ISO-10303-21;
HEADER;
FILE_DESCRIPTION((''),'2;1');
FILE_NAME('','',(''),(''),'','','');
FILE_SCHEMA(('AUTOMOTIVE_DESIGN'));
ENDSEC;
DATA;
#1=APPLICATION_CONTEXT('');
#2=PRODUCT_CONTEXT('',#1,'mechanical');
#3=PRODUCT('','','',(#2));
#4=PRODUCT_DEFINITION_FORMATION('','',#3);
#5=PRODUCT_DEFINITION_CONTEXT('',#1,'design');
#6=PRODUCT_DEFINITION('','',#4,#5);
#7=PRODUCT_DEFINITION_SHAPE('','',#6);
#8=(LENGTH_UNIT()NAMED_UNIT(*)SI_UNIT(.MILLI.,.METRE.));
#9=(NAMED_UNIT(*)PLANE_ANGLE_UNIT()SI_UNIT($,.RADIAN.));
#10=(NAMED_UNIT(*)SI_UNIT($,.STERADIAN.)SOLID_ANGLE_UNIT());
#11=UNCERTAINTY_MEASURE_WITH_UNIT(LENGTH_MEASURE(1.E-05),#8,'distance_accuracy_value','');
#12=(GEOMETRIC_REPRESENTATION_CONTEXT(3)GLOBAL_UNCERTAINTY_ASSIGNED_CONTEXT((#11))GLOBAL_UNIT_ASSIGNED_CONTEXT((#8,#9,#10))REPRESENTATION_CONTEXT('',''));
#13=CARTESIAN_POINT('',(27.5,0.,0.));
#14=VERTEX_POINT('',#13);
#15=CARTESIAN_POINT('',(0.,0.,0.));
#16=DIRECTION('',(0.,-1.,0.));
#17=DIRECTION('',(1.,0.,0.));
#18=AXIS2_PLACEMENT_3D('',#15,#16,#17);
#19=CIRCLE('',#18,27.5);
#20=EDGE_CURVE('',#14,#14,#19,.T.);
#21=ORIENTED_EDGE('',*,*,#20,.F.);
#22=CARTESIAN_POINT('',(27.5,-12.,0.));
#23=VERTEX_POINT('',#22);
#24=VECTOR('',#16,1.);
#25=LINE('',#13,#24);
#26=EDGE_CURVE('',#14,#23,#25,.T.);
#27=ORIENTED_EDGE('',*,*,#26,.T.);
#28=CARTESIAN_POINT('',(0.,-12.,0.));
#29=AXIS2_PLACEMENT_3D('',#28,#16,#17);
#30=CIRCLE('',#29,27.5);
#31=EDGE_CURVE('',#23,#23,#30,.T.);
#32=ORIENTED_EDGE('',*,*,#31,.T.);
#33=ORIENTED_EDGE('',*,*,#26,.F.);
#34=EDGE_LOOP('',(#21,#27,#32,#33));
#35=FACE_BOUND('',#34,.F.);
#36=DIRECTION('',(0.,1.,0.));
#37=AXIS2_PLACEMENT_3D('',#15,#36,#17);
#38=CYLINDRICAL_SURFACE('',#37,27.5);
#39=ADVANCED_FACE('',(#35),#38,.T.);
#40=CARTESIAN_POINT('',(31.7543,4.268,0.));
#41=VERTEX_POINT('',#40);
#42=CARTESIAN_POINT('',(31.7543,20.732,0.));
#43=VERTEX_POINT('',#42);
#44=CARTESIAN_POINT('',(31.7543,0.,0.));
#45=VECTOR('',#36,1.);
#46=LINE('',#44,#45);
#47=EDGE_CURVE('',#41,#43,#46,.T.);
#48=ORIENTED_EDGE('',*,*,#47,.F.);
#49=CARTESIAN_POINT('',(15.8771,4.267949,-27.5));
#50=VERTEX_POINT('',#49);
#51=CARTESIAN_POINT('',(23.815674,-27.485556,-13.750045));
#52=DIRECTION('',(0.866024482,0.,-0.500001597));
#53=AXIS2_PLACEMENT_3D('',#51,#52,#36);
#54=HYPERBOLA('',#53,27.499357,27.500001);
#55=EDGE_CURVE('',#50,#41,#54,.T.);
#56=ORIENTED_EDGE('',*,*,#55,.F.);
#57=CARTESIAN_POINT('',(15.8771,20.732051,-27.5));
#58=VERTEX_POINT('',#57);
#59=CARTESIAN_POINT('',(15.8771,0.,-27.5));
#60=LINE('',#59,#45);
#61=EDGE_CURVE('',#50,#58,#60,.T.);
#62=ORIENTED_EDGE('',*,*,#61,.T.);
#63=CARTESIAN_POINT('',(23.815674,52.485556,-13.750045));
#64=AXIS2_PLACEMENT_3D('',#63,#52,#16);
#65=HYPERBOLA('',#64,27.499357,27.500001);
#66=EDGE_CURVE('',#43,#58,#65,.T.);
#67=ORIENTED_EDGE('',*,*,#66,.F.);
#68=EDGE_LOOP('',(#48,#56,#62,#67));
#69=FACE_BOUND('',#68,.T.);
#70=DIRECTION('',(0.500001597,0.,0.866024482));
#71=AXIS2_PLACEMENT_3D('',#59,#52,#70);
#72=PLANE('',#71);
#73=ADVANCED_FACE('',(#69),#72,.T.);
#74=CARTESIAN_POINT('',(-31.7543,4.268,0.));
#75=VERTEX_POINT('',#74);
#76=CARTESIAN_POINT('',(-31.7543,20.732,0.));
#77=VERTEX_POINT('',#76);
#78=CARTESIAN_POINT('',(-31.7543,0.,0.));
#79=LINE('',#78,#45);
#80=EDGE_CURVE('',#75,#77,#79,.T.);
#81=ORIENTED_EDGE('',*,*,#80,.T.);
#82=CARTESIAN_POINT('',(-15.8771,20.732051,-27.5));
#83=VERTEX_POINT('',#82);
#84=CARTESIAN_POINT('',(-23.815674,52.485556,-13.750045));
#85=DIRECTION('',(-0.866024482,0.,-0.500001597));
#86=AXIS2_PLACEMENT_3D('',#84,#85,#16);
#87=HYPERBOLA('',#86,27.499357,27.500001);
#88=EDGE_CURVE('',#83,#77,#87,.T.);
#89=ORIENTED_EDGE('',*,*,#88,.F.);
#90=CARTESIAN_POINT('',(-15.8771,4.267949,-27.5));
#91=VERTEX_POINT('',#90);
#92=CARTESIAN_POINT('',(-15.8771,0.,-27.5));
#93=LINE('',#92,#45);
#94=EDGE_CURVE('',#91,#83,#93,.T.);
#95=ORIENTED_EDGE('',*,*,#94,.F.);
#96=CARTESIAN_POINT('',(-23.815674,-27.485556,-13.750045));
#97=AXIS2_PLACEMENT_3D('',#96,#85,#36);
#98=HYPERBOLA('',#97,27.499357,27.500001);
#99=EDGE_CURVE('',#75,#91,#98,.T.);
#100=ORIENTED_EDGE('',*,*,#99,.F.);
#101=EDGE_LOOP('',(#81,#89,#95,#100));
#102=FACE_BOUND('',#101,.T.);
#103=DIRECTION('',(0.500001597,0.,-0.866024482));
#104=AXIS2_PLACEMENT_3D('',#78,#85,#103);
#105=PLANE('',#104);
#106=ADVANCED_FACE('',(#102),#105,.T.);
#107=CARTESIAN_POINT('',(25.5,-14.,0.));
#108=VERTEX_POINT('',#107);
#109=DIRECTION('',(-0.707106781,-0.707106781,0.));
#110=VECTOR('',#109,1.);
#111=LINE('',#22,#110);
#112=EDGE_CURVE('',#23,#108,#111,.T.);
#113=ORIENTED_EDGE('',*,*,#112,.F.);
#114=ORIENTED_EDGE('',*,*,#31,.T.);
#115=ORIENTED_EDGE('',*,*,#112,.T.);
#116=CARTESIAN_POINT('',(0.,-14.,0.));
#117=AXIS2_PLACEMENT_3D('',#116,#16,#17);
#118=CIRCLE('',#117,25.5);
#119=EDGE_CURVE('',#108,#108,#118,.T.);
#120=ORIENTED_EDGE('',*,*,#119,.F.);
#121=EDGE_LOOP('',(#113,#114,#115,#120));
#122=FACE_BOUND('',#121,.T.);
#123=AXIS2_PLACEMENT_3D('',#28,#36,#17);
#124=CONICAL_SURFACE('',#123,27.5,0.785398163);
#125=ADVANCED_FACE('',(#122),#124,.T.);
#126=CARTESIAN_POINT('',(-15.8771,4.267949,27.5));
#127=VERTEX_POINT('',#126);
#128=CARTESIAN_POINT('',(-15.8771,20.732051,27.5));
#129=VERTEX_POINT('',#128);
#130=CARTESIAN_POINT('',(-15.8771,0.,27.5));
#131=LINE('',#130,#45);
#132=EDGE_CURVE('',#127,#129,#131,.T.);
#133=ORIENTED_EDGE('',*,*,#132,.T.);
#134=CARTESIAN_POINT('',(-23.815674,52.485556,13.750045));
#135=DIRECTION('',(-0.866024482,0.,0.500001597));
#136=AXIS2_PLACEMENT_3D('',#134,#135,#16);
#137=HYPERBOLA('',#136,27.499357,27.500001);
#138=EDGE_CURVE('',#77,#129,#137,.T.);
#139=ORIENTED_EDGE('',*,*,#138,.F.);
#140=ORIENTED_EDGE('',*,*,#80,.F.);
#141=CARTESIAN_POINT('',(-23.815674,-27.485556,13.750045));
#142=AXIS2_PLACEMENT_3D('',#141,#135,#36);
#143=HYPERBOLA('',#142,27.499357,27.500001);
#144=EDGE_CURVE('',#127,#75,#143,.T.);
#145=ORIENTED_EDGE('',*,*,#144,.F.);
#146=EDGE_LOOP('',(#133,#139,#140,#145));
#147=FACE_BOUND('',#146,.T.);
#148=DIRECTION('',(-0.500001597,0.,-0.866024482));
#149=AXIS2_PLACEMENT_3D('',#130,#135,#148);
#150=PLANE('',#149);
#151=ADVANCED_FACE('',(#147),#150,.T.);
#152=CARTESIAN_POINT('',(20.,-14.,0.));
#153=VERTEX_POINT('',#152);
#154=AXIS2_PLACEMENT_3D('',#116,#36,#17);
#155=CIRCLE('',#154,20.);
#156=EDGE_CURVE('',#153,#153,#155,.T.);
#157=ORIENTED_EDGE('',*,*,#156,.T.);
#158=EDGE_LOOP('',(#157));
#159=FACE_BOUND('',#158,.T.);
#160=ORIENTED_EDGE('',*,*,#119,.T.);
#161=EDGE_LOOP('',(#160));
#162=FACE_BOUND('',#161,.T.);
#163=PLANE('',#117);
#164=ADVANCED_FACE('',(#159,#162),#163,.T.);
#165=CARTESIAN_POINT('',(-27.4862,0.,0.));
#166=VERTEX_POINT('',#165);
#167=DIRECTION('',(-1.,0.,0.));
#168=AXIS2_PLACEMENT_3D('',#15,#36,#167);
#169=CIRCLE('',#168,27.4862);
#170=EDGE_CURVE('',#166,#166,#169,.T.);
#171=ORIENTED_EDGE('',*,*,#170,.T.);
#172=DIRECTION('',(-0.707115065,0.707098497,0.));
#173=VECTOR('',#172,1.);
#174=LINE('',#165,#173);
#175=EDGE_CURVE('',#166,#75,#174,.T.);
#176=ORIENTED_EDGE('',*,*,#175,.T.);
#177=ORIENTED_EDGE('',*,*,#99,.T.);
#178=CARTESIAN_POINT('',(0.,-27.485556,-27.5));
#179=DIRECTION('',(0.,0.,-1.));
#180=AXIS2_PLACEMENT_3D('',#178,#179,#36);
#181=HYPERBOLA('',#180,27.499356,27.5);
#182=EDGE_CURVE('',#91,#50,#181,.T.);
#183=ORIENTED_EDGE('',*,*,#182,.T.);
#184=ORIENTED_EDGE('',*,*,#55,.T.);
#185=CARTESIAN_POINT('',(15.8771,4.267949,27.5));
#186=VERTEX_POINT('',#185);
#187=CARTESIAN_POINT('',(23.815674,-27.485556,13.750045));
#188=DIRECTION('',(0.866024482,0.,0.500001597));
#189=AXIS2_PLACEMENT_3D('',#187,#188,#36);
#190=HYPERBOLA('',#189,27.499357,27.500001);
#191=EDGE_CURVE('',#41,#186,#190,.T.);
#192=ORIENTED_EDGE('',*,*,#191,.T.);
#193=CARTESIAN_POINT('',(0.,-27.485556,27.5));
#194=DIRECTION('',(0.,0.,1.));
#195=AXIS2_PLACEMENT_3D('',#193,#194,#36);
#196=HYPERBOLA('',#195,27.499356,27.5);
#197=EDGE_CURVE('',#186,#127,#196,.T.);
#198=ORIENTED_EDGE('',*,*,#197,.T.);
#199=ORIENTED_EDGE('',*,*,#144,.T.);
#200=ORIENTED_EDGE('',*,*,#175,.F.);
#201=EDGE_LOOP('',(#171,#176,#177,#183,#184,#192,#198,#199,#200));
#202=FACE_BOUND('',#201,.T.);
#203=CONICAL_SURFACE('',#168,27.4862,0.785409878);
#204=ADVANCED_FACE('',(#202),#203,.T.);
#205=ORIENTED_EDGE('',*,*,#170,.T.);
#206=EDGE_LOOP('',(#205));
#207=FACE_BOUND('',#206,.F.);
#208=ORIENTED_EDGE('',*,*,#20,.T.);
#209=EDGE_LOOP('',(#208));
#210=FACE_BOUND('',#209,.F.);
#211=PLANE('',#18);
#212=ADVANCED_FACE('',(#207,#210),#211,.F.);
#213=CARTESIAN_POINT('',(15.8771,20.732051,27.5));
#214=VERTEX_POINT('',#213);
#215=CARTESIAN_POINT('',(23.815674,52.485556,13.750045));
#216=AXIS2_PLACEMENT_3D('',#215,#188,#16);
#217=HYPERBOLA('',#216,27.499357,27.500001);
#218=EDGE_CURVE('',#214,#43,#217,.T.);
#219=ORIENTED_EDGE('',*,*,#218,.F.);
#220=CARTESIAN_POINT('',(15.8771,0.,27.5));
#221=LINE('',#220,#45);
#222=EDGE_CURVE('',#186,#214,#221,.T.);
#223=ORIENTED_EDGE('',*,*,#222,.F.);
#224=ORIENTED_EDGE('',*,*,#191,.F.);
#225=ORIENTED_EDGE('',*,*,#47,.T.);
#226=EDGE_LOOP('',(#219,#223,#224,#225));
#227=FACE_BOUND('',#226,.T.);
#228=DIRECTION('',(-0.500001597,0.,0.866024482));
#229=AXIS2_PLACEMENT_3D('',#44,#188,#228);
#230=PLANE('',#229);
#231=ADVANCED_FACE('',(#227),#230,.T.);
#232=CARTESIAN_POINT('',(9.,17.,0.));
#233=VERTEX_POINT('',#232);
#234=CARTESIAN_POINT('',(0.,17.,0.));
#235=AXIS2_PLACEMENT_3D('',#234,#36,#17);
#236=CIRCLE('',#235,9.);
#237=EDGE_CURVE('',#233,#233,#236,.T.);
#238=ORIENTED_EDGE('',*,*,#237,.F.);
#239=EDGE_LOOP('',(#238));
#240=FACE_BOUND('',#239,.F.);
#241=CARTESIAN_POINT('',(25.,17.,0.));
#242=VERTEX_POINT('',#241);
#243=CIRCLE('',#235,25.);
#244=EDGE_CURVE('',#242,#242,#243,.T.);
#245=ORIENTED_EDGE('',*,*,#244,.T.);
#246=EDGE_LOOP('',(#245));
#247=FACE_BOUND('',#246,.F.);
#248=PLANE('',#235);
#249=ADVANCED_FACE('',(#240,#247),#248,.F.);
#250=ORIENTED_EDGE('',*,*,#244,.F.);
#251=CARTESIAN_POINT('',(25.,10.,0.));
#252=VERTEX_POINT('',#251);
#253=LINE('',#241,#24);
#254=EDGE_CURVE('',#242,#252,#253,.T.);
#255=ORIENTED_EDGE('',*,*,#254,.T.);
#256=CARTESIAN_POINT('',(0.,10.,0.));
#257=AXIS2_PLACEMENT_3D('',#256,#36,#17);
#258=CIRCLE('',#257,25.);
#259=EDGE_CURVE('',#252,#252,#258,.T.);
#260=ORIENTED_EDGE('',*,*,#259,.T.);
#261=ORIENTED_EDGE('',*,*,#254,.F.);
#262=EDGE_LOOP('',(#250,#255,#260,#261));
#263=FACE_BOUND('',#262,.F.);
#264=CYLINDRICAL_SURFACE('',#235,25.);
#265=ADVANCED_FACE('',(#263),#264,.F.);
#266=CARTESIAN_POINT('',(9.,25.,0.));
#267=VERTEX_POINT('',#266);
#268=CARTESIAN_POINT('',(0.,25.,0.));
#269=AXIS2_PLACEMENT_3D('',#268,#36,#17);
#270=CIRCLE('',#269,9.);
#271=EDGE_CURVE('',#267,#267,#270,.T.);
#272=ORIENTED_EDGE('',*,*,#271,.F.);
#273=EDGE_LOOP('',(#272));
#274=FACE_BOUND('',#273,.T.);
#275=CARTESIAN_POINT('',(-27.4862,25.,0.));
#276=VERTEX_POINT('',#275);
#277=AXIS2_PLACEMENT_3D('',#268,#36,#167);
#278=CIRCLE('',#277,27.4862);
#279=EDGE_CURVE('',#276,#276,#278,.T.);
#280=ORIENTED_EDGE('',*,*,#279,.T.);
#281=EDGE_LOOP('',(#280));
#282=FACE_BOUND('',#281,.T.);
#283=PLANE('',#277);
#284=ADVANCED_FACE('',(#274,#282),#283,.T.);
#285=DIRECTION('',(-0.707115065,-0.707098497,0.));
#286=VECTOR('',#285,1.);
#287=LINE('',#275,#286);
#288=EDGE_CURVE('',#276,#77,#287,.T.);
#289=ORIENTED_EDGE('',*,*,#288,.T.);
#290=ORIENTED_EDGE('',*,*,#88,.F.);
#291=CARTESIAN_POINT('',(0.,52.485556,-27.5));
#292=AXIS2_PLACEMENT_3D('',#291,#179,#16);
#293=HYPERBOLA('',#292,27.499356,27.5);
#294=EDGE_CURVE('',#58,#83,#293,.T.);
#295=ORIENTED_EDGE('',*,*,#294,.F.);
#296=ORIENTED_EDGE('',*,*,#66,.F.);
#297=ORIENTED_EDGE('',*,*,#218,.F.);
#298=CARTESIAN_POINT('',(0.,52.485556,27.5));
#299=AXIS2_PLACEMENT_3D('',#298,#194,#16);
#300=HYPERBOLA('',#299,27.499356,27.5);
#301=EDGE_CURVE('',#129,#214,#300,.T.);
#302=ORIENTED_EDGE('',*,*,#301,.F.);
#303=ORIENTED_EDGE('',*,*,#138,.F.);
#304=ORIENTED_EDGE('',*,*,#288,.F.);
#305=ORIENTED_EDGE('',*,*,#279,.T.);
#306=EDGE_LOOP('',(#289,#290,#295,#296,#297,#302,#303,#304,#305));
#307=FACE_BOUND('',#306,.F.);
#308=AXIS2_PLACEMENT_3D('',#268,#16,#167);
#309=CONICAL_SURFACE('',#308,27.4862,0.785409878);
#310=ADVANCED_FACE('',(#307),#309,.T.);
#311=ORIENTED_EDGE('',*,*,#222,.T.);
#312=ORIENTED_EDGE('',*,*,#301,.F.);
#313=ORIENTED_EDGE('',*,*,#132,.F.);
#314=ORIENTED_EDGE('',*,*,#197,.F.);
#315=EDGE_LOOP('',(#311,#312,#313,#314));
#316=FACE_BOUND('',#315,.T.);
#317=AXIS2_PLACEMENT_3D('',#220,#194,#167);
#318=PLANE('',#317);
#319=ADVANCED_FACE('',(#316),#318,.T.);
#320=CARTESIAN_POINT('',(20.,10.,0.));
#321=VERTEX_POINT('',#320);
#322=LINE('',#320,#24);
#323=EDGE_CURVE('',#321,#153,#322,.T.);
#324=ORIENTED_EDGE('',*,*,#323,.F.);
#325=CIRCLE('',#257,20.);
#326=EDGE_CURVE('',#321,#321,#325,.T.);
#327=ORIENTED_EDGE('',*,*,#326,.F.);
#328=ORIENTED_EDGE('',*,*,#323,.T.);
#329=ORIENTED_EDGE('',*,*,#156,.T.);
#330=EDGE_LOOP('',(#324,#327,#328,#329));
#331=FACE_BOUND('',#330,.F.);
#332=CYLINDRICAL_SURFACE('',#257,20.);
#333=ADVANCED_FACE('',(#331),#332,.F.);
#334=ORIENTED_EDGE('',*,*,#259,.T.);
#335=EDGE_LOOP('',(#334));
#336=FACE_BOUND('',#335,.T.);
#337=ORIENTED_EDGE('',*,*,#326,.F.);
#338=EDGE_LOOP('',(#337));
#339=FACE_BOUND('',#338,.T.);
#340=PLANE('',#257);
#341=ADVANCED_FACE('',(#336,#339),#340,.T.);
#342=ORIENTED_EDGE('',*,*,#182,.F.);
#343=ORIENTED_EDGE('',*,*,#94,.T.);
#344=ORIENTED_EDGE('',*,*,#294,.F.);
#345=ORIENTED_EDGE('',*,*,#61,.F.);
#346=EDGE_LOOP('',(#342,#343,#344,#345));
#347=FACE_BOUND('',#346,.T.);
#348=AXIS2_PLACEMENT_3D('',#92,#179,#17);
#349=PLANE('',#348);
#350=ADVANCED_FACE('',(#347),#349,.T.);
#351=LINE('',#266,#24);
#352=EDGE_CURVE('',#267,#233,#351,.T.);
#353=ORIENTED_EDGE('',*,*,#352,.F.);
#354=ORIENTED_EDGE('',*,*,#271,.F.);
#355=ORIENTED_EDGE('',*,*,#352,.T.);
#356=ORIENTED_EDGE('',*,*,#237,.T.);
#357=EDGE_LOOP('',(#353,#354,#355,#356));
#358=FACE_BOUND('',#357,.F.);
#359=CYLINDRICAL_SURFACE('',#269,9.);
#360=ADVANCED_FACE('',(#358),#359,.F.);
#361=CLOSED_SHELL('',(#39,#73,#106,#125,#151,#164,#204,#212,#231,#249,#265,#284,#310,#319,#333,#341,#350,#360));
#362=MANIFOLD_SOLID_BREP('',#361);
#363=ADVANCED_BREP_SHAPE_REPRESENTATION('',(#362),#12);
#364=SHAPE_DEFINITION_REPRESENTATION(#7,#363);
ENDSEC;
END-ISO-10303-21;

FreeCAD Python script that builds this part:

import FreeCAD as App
import Part
import Sketcher

V = App.Vector
Q = App.Units.Quantity


def edges_at(feature, points):
    """Names of the edges that pass closest to the given points."""
    edges = feature.Shape.Edges
    near = lambda p: min(range(len(edges)), key=lambda i: edges[i].distToShape(Part.Vertex(*p))[0])
    return sorted({f"Edge{near(p) + 1}" for p in points})

doc = App.newDocument("Part")
body = doc.addObject("PartDesign::Body", "Body")

# Sketch on XZ plane
sketch1 = doc.addObject("Sketcher::SketchObject", "Sketch")
body.addObject(sketch1)
sketch1.AttachmentSupport = (doc.XZ_Plane, [""])
sketch1.MapMode = "FlatFace"
sketch1.addGeometry(Part.LineSegment(V(-16, -28, 0), V(-32, 0, 0)), False)
sketch1.addGeometry(Part.LineSegment(V(-32, 0, 0), V(-16, 28, 0)), False)
sketch1.addGeometry(Part.LineSegment(V(-16, 28, 0), V(16, 28, 0)), False)
sketch1.addGeometry(Part.LineSegment(V(16, 28, 0), V(32, 0, 0)), False)
sketch1.addGeometry(Part.LineSegment(V(32, 0, 0), V(16, -28, 0)), False)
sketch1.addGeometry(Part.LineSegment(V(16, -28, 0), V(-16, -28, 0)), False)
sketch1.addConstraint(Sketcher.Constraint("Coincident", 0, 2, 1, 1))
sketch1.addConstraint(Sketcher.Constraint("Coincident", 1, 2, 2, 1))
sketch1.addConstraint(Sketcher.Constraint("Coincident", 2, 2, 3, 1))
sketch1.addConstraint(Sketcher.Constraint("Coincident", 3, 2, 4, 1))
sketch1.addConstraint(Sketcher.Constraint("Coincident", 4, 2, 5, 1))
sketch1.addConstraint(Sketcher.Constraint("Coincident", 5, 2, 0, 1))
sketch1.addConstraint(Sketcher.Constraint("Horizontal", 2))
sketch1.addConstraint(Sketcher.Constraint("Horizontal", 5))
sketch1.addConstraint(Sketcher.Constraint("Symmetric", 0, 2, 3, 2, -1, 1))
sketch1.addConstraint(Sketcher.Constraint("Symmetric", 1, 2, 4, 2, -1, 1))
sketch1.addConstraint(Sketcher.Constraint("PointOnObject", 0, 2, -1))
sketch1.addConstraint(Sketcher.Constraint("Parallel", 0, 3))
sketch1.addConstraint(Sketcher.Constraint("Vertical", 2, 2, 4, 2))
sketch1.addConstraint(Sketcher.Constraint("Angle", 0, Q("120 deg")))
sketch1.addConstraint(Sketcher.Constraint("DistanceY", 4, 2, 2, 2, Q("55 mm")))
sketch1.addConstraint(Sketcher.Constraint("DistanceX", 2, 1, 2, 2, Q("31.7542 mm")))
pad1 = doc.addObject("PartDesign::Pad", "Pad")
body.addObject(pad1)
pad1.Profile = sketch1
pad1.Length = 25
pad1.Reversed = True

# Sketch on XY plane
sketch2 = doc.addObject("Sketcher::SketchObject", "Sketch001")
body.addObject(sketch2)
sketch2.AttachmentSupport = (doc.XY_Plane, [""])
sketch2.MapMode = "FlatFace"
sketch2.addGeometry(Part.LineSegment(V(-31.8, 20.7, 0), V(-27.5, 25, 0)), False)
sketch2.addGeometry(Part.LineSegment(V(-27.5, 25, 0), V(-31.8, 25, 0)), False)
sketch2.addGeometry(Part.LineSegment(V(-31.8, 25, 0), V(-31.8, 20.7, 0)), False)
sketch2.addConstraint(Sketcher.Constraint("Coincident", 0, 2, 1, 1))
sketch2.addConstraint(Sketcher.Constraint("Coincident", 1, 2, 2, 1))
sketch2.addConstraint(Sketcher.Constraint("Coincident", 2, 2, 0, 1))
sketch2.addConstraint(Sketcher.Constraint("Horizontal", 1))
sketch2.addConstraint(Sketcher.Constraint("Vertical", 2))
sketch2.addConstraint(Sketcher.Constraint("Equal", 1, 2))
sketch2.addConstraint(Sketcher.Constraint("DistanceY", -1, 1, 0, 2, Q("25 mm")))
sketch2.addConstraint(Sketcher.Constraint("DistanceX", 1, 2, 1, 1, Q("4.268 mm")))
sketch2.addConstraint(Sketcher.Constraint("DistanceX", 0, 2, -1, 1, Q("27.4862 mm")))
groove = doc.addObject("PartDesign::Groove", "Groove")
body.addObject(groove)
groove.Profile = sketch2
groove.ReferenceAxis = (sketch2, ["V_Axis"])
groove.Angle = 360
doc.recompute()

datumplane = doc.addObject("PartDesign::Plane", "DatumPlane")
body.addObject(datumplane)
datumplane.AttachmentSupport = (doc.XZ_Plane, [""])
datumplane.MapMode = "FlatFace"
datumplane.AttachmentOffset = App.Placement(V(0, 0, -12.5), App.Rotation())
mirrored = doc.addObject("PartDesign::Mirrored", "Mirrored")
body.addObject(mirrored)
mirrored.Originals = [groove]
mirrored.MirrorPlane = (datumplane, [""])
body.Tip = mirrored

# Sketch on XZ plane
sketch3 = doc.addObject("Sketcher::SketchObject", "Sketch002")
body.addObject(sketch3)
sketch3.AttachmentSupport = (doc.XZ_Plane, [""])
sketch3.MapMode = "FlatFace"
sketch3.AttachmentOffset = App.Placement(V(0, 0, -25), App.Rotation())
sketch3.addGeometry(Part.Circle(V(0, 0, 0), V(0, 0, 1), 9), False)
sketch3.addConstraint(Sketcher.Constraint("Coincident", 0, 3, -1, 1))
sketch3.addConstraint(Sketcher.Constraint("Diameter", 0, Q("18 mm")))
pocket1 = doc.addObject("PartDesign::Pocket", "Pocket")
body.addObject(pocket1)
pocket1.Profile = sketch3
pocket1.Length = 8
pocket1.Reversed = True

# Sketch on XZ plane
sketch4 = doc.addObject("Sketcher::SketchObject", "Sketch003")
body.addObject(sketch4)
sketch4.AttachmentSupport = (doc.XZ_Plane, [""])
sketch4.MapMode = "FlatFace"
sketch4.AttachmentOffset = App.Placement(V(0, 0, -17), App.Rotation())
sketch4.addGeometry(Part.Circle(V(0, 0, 0), V(0, 0, 1), 25), False)
sketch4.addConstraint(Sketcher.Constraint("Coincident", 0, 3, -1, 1))
sketch4.addConstraint(Sketcher.Constraint("Diameter", 0, Q("50 mm")))
pocket2 = doc.addObject("PartDesign::Pocket", "Pocket001")
body.addObject(pocket2)
pocket2.Profile = sketch4
pocket2.Length = 7
pocket2.Reversed = True

# Sketch on XZ plane
sketch5 = doc.addObject("Sketcher::SketchObject", "Sketch004")
body.addObject(sketch5)
sketch5.AttachmentSupport = (doc.XZ_Plane, [""])
sketch5.MapMode = "FlatFace"
sketch5.addGeometry(Part.Circle(V(0, 0, 0), V(0, 0, 1), 28), False)
sketch5.addConstraint(Sketcher.Constraint("Coincident", 0, 3, -1, 1))
sketch5.addConstraint(Sketcher.Constraint("Diameter", 0, Q("55 mm")))
pad2 = doc.addObject("PartDesign::Pad", "Pad001")
body.addObject(pad2)
pad2.Profile = sketch5
pad2.Length = 14

# Sketch on XZ plane
sketch6 = doc.addObject("Sketcher::SketchObject", "Sketch005")
body.addObject(sketch6)
sketch6.AttachmentSupport = (doc.XZ_Plane, [""])
sketch6.MapMode = "FlatFace"
sketch6.AttachmentOffset = App.Placement(V(0, 0, -10), App.Rotation())
sketch6.addGeometry(Part.Circle(V(0, 0, 0), V(0, 0, 1), 20), False)
sketch6.addConstraint(Sketcher.Constraint("Coincident", 0, 3, -1, 1))
sketch6.addConstraint(Sketcher.Constraint("Diameter", 0, Q("40 mm")))
pocket3 = doc.addObject("PartDesign::Pocket", "Pocket002")
body.addObject(pocket3)
pocket3.Profile = sketch6
pocket3.Type = "ThroughAll"
pocket3.Reversed = True
doc.recompute()

chamfer = doc.addObject("PartDesign::Chamfer", "Chamfer")
body.addObject(chamfer)
chamfer.Base = (pocket3, edges_at(pocket3, [(-27.5, -14, 0)]))
chamfer.Size = 2

doc.recompute()
